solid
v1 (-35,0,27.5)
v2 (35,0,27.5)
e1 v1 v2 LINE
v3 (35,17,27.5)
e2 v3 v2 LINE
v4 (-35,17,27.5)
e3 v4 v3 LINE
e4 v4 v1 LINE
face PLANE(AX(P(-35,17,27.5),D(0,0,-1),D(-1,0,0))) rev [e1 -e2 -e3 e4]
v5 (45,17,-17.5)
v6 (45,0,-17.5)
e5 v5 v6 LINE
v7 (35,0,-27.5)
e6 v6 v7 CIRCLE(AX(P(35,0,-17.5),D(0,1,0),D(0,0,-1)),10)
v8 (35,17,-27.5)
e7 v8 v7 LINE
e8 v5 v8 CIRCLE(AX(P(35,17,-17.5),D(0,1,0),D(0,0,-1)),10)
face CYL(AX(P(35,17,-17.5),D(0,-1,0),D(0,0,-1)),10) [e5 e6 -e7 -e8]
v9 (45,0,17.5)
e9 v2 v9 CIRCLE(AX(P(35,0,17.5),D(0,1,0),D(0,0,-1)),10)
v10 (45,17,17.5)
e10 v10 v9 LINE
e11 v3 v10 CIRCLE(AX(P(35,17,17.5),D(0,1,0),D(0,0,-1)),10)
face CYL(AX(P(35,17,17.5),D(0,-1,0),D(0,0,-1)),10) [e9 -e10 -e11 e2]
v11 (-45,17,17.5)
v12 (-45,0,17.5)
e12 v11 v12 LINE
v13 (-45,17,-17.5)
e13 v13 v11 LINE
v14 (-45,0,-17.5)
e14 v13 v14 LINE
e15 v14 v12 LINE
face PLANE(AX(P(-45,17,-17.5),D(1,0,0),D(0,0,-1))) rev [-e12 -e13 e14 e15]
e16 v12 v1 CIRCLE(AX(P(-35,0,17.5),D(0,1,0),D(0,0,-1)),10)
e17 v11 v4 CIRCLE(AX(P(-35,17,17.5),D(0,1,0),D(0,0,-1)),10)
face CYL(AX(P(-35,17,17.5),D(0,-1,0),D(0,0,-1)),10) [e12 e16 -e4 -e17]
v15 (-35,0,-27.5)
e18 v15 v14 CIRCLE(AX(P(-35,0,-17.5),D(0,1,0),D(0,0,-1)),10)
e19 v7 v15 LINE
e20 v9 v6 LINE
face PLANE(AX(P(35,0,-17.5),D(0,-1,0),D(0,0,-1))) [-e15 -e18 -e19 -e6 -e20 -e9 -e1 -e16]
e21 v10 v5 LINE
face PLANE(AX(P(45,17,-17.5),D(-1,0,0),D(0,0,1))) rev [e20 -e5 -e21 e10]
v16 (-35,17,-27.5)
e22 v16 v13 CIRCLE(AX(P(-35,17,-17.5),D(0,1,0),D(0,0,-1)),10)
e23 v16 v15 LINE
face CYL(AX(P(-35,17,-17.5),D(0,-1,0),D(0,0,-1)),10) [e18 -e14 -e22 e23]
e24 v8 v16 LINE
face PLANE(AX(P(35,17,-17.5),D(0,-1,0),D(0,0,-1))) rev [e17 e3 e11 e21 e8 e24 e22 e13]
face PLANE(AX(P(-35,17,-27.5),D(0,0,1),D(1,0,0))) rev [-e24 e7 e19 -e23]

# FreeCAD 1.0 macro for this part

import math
import FreeCAD as App
import Part
import Sketcher

V = App.Vector

doc = App.newDocument("Part")
body = doc.addObject("PartDesign::Body", "Body")

sketch1 = body.newObject("Sketcher::SketchObject", "Sketch")
sketch1.AttachmentSupport = (doc.getObject("XZ_Plane"), [""])
sketch1.MapMode = "FlatFace"
sketch1.addGeometry(Part.LineSegment(V(35, -28, 0), V(-35, -28, 0)), False)
sketch1.addGeometry(Part.ArcOfCircle(Part.Circle(V(-35, -18, 0), V(0, 0, 1), 10), math.radians(180), math.radians(270)), False)
sketch1.addGeometry(Part.LineSegment(V(-45, -18, 0), V(-45, 18, 0)), False)
sketch1.addGeometry(Part.ArcOfCircle(Part.Circle(V(-35, 18, 0), V(0, 0, 1), 10), math.radians(90), math.radians(180)), False)
sketch1.addGeometry(Part.LineSegment(V(-35, 28, 0), V(35, 28, 0)), False)
sketch1.addGeometry(Part.ArcOfCircle(Part.Circle(V(35, 18, 0), V(0, 0, 1), 10), math.radians(0), math.radians(90)), False)
sketch1.addGeometry(Part.LineSegment(V(45, 18, 0), V(45, -18, 0)), False)
sketch1.addGeometry(Part.ArcOfCircle(Part.Circle(V(35, -18, 0), V(0, 0, 1), 10), math.radians(-90), math.radians(0)), False)
sketch1.addConstraint(Sketcher.Constraint("Tangent", 0, 2, 1, 2))
sketch1.addConstraint(Sketcher.Constraint("Tangent", 1, 1, 2, 1))
sketch1.addConstraint(Sketcher.Constraint("Tangent", 2, 2, 3, 2))
sketch1.addConstraint(Sketcher.Constraint("Tangent", 3, 1, 4, 1))
sketch1.addConstraint(Sketcher.Constraint("Tangent", 4, 2, 5, 2))
sketch1.addConstraint(Sketcher.Constraint("Tangent", 5, 1, 6, 1))
sketch1.addConstraint(Sketcher.Constraint("Tangent", 6, 2, 7, 2))
sketch1.addConstraint(Sketcher.Constraint("Tangent", 7, 1, 0, 1))
sketch1.addConstraint(Sketcher.Constraint("Horizontal", 0))
sketch1.addConstraint(Sketcher.Constraint("Vertical", 2))
sketch1.addConstraint(Sketcher.Constraint("Horizontal", 4))
sketch1.addConstraint(Sketcher.Constraint("Vertical", 6))
sketch1.addConstraint(Sketcher.Constraint("Equal", 1, 3))
sketch1.addConstraint(Sketcher.Constraint("Equal", 3, 5))
sketch1.addConstraint(Sketcher.Constraint("Equal", 5, 7))
sketch1.addConstraint(Sketcher.Constraint("Symmetric", 1, 3, 5, 3, -1, 1))
sketch1.addConstraint(Sketcher.Constraint("Radius", 1, 10.0))
sketch1.addConstraint(Sketcher.Constraint("DistanceX", 0, 2, 0, 1, 70.0))
sketch1.addConstraint(Sketcher.Constraint("DistanceY", 2, 1, 2, 2, 35.0))
pad1 = body.newObject("PartDesign::Pad", "Pad")
pad1.Profile = sketch1
pad1.Length = 17
pad1.Reversed = True

doc.recompute()
